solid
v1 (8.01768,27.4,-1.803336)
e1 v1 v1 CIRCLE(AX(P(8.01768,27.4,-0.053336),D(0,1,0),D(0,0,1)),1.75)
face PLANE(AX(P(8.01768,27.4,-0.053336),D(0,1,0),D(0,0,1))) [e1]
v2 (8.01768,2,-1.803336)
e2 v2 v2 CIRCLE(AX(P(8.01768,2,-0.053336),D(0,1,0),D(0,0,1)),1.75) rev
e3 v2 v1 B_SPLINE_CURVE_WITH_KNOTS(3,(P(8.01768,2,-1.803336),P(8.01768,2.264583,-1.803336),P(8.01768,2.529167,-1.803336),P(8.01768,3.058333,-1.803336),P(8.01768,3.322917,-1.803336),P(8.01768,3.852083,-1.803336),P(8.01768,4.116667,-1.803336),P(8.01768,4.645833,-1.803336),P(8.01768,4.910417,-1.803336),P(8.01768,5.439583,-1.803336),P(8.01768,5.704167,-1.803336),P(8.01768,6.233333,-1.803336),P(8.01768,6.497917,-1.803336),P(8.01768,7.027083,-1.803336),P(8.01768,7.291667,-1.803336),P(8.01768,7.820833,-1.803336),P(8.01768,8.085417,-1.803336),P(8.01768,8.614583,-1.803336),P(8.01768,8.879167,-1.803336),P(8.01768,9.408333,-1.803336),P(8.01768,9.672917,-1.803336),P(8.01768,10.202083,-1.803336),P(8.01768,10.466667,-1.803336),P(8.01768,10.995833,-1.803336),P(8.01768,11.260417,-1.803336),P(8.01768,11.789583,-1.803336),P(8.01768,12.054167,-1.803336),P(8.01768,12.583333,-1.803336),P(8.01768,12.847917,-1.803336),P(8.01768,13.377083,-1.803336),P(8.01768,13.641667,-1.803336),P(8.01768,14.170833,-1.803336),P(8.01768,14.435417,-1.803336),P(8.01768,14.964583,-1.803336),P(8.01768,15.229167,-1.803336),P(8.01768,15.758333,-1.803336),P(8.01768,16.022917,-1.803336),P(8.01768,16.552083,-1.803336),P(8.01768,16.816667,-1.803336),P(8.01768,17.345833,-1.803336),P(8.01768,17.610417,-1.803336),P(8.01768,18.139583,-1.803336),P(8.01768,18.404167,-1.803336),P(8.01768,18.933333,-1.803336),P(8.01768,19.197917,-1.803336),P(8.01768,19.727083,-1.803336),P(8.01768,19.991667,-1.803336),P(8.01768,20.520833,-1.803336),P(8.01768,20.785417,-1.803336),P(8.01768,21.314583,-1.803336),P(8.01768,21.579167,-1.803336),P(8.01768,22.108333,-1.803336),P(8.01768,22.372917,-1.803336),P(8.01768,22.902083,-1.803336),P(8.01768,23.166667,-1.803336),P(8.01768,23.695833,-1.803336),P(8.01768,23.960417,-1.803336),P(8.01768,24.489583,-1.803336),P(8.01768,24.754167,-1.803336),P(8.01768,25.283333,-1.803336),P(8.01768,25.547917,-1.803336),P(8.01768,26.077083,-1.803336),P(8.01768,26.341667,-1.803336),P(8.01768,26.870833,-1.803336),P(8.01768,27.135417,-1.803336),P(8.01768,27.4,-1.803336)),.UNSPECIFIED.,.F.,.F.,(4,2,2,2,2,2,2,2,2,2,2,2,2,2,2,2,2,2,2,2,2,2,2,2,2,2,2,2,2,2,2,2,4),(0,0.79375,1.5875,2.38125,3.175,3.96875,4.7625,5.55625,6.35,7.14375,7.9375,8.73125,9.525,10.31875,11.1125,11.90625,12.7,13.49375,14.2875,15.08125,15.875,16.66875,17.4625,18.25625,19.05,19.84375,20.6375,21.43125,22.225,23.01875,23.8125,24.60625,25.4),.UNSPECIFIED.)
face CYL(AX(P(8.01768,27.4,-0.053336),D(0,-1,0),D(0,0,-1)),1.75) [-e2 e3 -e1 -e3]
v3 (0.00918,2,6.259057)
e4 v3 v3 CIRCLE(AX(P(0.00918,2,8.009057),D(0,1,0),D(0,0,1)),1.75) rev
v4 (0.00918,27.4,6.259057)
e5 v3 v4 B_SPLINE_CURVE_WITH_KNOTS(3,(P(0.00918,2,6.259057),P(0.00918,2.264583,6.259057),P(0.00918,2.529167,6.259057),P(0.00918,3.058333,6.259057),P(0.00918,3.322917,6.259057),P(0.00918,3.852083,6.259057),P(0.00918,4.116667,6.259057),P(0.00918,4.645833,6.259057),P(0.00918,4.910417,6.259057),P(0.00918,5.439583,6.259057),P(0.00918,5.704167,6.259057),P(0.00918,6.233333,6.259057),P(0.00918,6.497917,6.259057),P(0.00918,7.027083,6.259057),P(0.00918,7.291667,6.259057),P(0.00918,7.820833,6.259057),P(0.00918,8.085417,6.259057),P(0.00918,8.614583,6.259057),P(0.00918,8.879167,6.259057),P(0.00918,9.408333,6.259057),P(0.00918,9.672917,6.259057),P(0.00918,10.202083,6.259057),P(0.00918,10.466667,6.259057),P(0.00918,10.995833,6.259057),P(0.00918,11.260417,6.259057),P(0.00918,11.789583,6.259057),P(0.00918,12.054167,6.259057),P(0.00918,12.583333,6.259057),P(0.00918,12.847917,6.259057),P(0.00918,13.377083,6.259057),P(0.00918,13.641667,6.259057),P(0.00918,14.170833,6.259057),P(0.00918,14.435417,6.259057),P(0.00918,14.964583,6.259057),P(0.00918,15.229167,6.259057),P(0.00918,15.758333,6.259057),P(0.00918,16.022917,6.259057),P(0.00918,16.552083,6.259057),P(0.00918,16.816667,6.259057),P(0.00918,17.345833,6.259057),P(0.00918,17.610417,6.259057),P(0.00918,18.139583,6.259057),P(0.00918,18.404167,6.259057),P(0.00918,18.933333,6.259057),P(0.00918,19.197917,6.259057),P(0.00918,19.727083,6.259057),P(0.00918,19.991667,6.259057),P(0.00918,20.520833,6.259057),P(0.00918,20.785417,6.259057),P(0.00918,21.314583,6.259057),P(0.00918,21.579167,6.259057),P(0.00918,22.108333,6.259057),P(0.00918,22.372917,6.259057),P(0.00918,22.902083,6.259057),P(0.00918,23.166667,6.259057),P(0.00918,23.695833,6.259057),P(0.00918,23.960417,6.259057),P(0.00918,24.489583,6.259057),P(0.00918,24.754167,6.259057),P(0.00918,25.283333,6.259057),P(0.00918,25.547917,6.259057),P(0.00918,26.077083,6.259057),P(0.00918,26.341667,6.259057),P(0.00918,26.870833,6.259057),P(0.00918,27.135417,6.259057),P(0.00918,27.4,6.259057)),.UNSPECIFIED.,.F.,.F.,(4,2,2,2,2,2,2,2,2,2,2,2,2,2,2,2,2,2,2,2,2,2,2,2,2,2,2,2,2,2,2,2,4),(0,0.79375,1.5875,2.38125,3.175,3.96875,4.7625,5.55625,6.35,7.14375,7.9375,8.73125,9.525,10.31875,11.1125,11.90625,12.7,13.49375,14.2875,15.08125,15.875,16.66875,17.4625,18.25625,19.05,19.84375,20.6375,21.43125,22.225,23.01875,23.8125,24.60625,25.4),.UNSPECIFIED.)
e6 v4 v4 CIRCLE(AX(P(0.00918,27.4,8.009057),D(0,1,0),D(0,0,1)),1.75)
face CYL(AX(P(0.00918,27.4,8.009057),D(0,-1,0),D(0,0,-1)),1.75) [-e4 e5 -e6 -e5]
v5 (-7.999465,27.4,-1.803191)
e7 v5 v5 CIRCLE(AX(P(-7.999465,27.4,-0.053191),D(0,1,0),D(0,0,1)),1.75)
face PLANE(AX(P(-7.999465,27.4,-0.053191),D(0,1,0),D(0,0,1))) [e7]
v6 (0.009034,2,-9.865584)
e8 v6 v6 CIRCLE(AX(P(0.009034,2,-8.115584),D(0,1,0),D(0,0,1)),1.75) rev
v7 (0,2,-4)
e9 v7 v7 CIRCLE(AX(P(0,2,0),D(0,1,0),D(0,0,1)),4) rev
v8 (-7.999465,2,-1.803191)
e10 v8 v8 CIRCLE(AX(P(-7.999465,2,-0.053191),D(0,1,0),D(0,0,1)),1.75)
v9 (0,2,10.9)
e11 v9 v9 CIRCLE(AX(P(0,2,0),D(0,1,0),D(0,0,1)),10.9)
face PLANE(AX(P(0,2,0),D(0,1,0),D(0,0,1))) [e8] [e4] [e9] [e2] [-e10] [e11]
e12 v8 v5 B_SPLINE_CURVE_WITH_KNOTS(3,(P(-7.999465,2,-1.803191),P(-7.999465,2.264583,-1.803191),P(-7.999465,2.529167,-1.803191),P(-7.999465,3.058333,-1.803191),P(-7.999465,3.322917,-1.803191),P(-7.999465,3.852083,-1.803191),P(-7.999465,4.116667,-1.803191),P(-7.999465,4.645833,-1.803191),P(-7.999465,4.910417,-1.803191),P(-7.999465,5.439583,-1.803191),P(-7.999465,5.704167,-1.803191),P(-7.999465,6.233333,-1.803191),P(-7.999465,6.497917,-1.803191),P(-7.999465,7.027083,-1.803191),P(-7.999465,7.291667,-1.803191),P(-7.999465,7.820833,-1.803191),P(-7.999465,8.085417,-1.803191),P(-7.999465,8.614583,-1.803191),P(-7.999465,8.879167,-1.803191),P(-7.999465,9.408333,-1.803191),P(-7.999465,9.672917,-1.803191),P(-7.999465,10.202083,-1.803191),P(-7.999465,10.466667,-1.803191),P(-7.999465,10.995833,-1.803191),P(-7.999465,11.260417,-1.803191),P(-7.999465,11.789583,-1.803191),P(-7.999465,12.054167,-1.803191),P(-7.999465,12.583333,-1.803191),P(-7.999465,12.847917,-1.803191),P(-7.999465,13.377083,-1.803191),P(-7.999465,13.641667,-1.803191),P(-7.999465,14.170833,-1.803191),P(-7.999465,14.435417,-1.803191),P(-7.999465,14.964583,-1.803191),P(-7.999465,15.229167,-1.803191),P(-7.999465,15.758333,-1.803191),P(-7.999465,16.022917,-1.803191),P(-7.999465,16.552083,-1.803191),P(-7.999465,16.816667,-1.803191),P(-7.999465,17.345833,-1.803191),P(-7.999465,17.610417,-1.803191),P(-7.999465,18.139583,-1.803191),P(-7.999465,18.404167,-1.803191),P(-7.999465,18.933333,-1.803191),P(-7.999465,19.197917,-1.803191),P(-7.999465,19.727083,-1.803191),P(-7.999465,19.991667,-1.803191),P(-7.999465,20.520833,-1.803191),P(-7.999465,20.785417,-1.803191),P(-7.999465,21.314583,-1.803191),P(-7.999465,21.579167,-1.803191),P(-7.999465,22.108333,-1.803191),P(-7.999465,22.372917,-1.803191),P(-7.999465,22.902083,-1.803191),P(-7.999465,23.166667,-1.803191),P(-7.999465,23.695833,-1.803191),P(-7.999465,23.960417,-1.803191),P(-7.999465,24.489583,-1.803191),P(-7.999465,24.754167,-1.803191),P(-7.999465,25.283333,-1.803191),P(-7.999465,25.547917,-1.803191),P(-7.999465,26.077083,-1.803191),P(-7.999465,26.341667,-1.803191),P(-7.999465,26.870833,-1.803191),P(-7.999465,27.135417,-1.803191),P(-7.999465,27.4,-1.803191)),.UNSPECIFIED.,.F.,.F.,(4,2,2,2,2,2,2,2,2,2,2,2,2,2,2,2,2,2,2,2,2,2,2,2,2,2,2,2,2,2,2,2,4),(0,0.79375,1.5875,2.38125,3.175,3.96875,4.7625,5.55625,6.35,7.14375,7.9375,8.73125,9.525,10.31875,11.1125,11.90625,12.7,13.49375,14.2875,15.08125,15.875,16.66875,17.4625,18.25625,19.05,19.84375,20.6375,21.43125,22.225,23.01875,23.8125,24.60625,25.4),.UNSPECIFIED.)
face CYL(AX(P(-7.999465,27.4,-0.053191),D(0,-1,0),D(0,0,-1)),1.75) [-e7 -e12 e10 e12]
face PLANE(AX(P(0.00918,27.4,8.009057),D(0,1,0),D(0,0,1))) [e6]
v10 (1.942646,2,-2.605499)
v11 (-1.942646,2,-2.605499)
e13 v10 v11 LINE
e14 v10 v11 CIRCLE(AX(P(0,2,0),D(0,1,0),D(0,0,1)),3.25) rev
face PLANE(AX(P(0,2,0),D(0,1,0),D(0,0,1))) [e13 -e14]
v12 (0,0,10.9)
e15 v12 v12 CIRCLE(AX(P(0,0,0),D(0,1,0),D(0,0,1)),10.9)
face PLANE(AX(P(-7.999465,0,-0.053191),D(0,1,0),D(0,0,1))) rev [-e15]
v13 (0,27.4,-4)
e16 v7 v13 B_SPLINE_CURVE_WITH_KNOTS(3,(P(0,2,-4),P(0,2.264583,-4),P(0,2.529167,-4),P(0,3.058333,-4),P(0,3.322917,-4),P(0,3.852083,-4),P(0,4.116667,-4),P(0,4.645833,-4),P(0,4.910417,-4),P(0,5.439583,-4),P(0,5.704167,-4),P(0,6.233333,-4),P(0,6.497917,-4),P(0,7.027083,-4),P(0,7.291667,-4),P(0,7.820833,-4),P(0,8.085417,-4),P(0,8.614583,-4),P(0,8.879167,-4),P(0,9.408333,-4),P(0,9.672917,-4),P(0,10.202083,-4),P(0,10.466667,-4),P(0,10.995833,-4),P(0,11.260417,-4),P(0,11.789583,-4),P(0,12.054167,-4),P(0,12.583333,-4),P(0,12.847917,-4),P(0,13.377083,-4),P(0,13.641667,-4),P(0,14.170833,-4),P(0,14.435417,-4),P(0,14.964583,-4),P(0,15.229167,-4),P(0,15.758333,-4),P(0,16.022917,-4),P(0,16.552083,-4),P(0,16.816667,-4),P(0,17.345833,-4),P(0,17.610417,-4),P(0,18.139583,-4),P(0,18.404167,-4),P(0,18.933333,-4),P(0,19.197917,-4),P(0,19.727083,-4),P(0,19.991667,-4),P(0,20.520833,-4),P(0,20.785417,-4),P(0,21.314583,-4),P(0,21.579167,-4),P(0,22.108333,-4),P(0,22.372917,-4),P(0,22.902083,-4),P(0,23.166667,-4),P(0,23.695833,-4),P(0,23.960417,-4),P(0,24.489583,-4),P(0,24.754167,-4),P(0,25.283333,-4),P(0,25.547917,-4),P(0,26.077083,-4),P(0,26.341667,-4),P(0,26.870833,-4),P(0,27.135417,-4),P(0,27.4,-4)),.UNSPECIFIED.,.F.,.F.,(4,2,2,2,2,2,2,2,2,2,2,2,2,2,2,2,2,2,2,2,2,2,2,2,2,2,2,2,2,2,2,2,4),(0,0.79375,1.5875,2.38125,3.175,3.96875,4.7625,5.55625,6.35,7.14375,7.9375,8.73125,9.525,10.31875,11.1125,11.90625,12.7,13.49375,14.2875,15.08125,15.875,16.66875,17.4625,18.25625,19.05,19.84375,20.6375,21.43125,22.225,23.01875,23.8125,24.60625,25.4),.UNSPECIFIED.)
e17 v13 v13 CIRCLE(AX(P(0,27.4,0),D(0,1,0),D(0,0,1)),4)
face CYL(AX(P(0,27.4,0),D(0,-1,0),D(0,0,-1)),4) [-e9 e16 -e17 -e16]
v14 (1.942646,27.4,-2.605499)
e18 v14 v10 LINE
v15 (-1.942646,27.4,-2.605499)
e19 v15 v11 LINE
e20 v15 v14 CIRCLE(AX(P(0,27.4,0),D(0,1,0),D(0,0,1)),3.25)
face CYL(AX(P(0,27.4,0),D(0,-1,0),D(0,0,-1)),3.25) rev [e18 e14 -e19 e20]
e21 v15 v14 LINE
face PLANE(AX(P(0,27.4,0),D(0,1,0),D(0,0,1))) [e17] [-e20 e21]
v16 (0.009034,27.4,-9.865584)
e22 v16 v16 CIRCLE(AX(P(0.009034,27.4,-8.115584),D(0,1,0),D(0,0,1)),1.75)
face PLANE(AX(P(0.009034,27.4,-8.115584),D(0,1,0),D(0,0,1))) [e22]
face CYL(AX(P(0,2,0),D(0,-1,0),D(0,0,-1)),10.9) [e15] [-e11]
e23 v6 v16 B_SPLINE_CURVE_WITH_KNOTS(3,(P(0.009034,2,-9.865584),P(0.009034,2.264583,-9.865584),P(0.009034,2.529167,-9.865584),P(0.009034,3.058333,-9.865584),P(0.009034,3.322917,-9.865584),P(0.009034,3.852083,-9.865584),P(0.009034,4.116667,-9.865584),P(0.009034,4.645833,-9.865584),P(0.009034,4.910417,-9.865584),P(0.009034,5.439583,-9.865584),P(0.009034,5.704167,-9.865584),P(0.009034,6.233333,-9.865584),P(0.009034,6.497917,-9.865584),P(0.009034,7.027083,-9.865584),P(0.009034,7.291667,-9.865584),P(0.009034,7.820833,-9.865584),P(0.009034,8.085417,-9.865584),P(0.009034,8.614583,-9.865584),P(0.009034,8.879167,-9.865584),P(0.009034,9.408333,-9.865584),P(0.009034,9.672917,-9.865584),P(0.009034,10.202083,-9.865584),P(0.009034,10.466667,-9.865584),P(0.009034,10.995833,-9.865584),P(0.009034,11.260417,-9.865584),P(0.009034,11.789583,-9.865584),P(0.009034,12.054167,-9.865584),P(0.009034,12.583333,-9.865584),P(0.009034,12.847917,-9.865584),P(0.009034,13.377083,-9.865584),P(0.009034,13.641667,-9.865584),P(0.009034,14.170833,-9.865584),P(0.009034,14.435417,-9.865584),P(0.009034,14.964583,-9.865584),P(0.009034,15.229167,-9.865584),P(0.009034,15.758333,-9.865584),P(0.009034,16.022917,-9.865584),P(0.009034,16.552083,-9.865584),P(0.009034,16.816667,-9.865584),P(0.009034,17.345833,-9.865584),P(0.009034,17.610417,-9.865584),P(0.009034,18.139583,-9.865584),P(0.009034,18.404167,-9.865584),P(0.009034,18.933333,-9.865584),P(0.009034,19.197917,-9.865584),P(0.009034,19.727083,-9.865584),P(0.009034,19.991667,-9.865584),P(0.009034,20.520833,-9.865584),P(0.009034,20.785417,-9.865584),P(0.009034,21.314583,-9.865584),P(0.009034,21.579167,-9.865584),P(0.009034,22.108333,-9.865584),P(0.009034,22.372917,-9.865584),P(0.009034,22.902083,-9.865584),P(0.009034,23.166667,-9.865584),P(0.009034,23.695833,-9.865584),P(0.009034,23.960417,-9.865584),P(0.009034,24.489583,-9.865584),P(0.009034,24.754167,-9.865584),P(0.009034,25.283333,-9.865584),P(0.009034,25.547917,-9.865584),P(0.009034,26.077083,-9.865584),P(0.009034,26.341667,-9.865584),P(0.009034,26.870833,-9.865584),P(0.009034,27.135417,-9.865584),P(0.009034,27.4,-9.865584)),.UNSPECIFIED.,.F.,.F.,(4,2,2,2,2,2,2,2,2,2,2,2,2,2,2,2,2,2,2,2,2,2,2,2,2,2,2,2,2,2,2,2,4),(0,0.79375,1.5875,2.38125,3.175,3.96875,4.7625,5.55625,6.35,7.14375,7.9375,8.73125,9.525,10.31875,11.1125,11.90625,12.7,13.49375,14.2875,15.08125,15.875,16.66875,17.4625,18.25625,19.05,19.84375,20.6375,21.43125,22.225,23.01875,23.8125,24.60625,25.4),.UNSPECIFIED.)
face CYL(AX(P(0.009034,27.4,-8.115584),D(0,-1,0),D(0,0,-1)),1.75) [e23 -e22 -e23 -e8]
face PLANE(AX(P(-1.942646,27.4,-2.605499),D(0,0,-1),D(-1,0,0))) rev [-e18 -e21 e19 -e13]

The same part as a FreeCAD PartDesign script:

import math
import FreeCAD as App
import Part
import Sketcher
Q = App.Units.Quantity

doc = App.newDocument("Part")
body = doc.addObject("PartDesign::Body", "Body")

sketch1 = doc.addObject("Sketcher::SketchObject", "Sketch")
body.addObject(sketch1)
sketch1.AttachmentSupport = (doc.XZ_Plane, [""])
sketch1.MapMode = "FlatFace"
sketch1.addGeometry(Part.Circle(App.Vector(0, -8.1, 0), App.Vector(0, 0, 1), 1.8), False)
sketch1.addConstraint(Sketcher.Constraint("Diameter", 0, Q("3.5 mm")))
sketch1.addConstraint(Sketcher.Constraint("DistanceX", -1, 1, 0, 3, Q("0.009034 mm")))
sketch1.addConstraint(Sketcher.Constraint("DistanceY", 0, 3, -1, 1, Q("8.115584 mm")))
pad1 = doc.addObject("PartDesign::Pad", "Pad")
body.addObject(pad1)
pad1.Profile = sketch1
pad1.Length = 27.4
pad1.Reversed = True
body2 = doc.addObject("PartDesign::Body", "Body001")

sketch2 = doc.addObject("Sketcher::SketchObject", "Sketch001")
body2.addObject(sketch2)
sketch2.AttachmentSupport = (doc.getObject("XZ_Plane001"), [""])
sketch2.MapMode = "FlatFace"
sketch2.addGeometry(Part.Circle(App.Vector(8, -0.1, 0), App.Vector(0, 0, 1), 1.8), False)
sketch2.addConstraint(Sketcher.Constraint("Diameter", 0, Q("3.5 mm")))
sketch2.addConstraint(Sketcher.Constraint("DistanceX", -1, 1, 0, 3, Q("8.01768 mm")))
sketch2.addConstraint(Sketcher.Constraint("DistanceY", 0, 3, -1, 1, Q("0.053336 mm")))
pad2 = doc.addObject("PartDesign::Pad", "Pad001")
body2.addObject(pad2)
pad2.Profile = sketch2
pad2.Length = 27.4
pad2.Reversed = True
body3 = doc.addObject("PartDesign::Body", "Body002")

sketch3 = doc.addObject("Sketcher::SketchObject", "Sketch002")
body3.addObject(sketch3)
sketch3.AttachmentSupport = (doc.getObject("XZ_Plane002"), [""])
sketch3.MapMode = "FlatFace"
sketch3.addGeometry(Part.Circle(App.Vector(0, 8, 0), App.Vector(0, 0, 1), 1.8), False)
sketch3.addConstraint(Sketcher.Constraint("Diameter", 0, Q("3.5 mm")))
sketch3.addConstraint(Sketcher.Constraint("DistanceX", -1, 1, 0, 3, Q("0.00918 mm")))
sketch3.addConstraint(Sketcher.Constraint("DistanceY", -1, 1, 0, 3, Q("8.009057 mm")))
pad3 = doc.addObject("PartDesign::Pad", "Pad002")
body3.addObject(pad3)
pad3.Profile = sketch3
pad3.Length = 27.4
pad3.Reversed = True
body4 = doc.addObject("PartDesign::Body", "Body003")

sketch4 = doc.addObject("Sketcher::SketchObject", "Sketch003")
body4.addObject(sketch4)
sketch4.AttachmentSupport = (doc.getObject("XZ_Plane003"), [""])
sketch4.MapMode = "FlatFace"
sketch4.addGeometry(Part.Circle(App.Vector(-8, -0.1, 0), App.Vector(0, 0, 1), 1.8), False)
sketch4.addConstraint(Sketcher.Constraint("Diameter", 0, Q("3.5 mm")))
sketch4.addConstraint(Sketcher.Constraint("DistanceY", 0, 3, -1, 1, Q("0.053191 mm")))
sketch4.addConstraint(Sketcher.Constraint("DistanceX", 0, 3, -1, 1, Q("7.999465 mm")))
pad4 = doc.addObject("PartDesign::Pad", "Pad003")
body4.addObject(pad4)
pad4.Profile = sketch4
pad4.Length = 27.4
pad4.Reversed = True
body5 = doc.addObject("PartDesign::Body", "Body004")

sketch5 = doc.addObject("Sketcher::SketchObject", "Sketch004")
body5.addObject(sketch5)
sketch5.AttachmentSupport = (doc.getObject("XZ_Plane004"), [""])
sketch5.MapMode = "FlatFace"
sketch5.addGeometry(Part.Circle(App.Vector(0, 0, 0), App.Vector(0, 0, 1), 4), False)
sketch5.addGeometry(Part.ArcOfCircle(Part.Circle(App.Vector(0, 0, 0), App.Vector(0, 0, 1), 3.2), math.radians(-53), math.radians(233)), False)
sketch5.addGeometry(Part.LineSegment(App.Vector(-1.9, -2.6, 0), App.Vector(1.9, -2.6, 0)), False)
sketch5.addConstraint(Sketcher.Constraint("Coincident", 1, 1, 2, 2))
sketch5.addConstraint(Sketcher.Constraint("Coincident", 2, 1, 1, 2))
sketch5.addConstraint(Sketcher.Constraint("Horizontal", 2))
sketch5.addConstraint(Sketcher.Constraint("Coincident", 0, 3, -1, 1))
sketch5.addConstraint(Sketcher.Constraint("Coincident", 1, 3, -1, 1))
sketch5.addConstraint(Sketcher.Constraint("Diameter", 0, Q("8 mm")))
sketch5.addConstraint(Sketcher.Constraint("Radius", 1, Q("3.25 mm")))
sketch5.addConstraint(Sketcher.Constraint("DistanceX", 2, 1, 2, 2, Q("3.885292 mm")))
pad5 = doc.addObject("PartDesign::Pad", "Pad004")
body5.addObject(pad5)
pad5.Profile = sketch5
pad5.Length = 27.4
pad5.Reversed = True
body.AllowCompound = True
doc.recompute()

boolean = doc.addObject("PartDesign::Boolean", "Boolean")
body.addObject(boolean)
boolean.Type = "Fuse"
boolean.addObjects([body2])
doc.recompute()

boolean2 = doc.addObject("PartDesign::Boolean", "Boolean001")
body.addObject(boolean2)
boolean2.Type = "Fuse"
boolean2.addObjects([body3])
doc.recompute()

boolean3 = doc.addObject("PartDesign::Boolean", "Boolean002")
body.addObject(boolean3)
boolean3.Type = "Fuse"
boolean3.addObjects([body4])
doc.recompute()

boolean4 = doc.addObject("PartDesign::Boolean", "Boolean003")
body.addObject(boolean4)
boolean4.Type = "Fuse"
boolean4.addObjects([body5])

sketch6 = doc.addObject("Sketcher::SketchObject", "Sketch005")
body.addObject(sketch6)
sketch6.AttachmentSupport = (doc.XZ_Plane, [""])
sketch6.MapMode = "FlatFace"
sketch6.addGeometry(Part.Circle(App.Vector(0, 0, 0), App.Vector(0, 0, 1), 11), False)
sketch6.addConstraint(Sketcher.Constraint("Coincident", 0, 3, -1, 1))
sketch6.addConstraint(Sketcher.Constraint("Diameter", 0, Q("21.8 mm")))
pad6 = doc.addObject("PartDesign::Pad", "Pad005")
body.addObject(pad6)
pad6.Profile = sketch6
pad6.Length = 2
pad6.Reversed = True

doc.recompute()
